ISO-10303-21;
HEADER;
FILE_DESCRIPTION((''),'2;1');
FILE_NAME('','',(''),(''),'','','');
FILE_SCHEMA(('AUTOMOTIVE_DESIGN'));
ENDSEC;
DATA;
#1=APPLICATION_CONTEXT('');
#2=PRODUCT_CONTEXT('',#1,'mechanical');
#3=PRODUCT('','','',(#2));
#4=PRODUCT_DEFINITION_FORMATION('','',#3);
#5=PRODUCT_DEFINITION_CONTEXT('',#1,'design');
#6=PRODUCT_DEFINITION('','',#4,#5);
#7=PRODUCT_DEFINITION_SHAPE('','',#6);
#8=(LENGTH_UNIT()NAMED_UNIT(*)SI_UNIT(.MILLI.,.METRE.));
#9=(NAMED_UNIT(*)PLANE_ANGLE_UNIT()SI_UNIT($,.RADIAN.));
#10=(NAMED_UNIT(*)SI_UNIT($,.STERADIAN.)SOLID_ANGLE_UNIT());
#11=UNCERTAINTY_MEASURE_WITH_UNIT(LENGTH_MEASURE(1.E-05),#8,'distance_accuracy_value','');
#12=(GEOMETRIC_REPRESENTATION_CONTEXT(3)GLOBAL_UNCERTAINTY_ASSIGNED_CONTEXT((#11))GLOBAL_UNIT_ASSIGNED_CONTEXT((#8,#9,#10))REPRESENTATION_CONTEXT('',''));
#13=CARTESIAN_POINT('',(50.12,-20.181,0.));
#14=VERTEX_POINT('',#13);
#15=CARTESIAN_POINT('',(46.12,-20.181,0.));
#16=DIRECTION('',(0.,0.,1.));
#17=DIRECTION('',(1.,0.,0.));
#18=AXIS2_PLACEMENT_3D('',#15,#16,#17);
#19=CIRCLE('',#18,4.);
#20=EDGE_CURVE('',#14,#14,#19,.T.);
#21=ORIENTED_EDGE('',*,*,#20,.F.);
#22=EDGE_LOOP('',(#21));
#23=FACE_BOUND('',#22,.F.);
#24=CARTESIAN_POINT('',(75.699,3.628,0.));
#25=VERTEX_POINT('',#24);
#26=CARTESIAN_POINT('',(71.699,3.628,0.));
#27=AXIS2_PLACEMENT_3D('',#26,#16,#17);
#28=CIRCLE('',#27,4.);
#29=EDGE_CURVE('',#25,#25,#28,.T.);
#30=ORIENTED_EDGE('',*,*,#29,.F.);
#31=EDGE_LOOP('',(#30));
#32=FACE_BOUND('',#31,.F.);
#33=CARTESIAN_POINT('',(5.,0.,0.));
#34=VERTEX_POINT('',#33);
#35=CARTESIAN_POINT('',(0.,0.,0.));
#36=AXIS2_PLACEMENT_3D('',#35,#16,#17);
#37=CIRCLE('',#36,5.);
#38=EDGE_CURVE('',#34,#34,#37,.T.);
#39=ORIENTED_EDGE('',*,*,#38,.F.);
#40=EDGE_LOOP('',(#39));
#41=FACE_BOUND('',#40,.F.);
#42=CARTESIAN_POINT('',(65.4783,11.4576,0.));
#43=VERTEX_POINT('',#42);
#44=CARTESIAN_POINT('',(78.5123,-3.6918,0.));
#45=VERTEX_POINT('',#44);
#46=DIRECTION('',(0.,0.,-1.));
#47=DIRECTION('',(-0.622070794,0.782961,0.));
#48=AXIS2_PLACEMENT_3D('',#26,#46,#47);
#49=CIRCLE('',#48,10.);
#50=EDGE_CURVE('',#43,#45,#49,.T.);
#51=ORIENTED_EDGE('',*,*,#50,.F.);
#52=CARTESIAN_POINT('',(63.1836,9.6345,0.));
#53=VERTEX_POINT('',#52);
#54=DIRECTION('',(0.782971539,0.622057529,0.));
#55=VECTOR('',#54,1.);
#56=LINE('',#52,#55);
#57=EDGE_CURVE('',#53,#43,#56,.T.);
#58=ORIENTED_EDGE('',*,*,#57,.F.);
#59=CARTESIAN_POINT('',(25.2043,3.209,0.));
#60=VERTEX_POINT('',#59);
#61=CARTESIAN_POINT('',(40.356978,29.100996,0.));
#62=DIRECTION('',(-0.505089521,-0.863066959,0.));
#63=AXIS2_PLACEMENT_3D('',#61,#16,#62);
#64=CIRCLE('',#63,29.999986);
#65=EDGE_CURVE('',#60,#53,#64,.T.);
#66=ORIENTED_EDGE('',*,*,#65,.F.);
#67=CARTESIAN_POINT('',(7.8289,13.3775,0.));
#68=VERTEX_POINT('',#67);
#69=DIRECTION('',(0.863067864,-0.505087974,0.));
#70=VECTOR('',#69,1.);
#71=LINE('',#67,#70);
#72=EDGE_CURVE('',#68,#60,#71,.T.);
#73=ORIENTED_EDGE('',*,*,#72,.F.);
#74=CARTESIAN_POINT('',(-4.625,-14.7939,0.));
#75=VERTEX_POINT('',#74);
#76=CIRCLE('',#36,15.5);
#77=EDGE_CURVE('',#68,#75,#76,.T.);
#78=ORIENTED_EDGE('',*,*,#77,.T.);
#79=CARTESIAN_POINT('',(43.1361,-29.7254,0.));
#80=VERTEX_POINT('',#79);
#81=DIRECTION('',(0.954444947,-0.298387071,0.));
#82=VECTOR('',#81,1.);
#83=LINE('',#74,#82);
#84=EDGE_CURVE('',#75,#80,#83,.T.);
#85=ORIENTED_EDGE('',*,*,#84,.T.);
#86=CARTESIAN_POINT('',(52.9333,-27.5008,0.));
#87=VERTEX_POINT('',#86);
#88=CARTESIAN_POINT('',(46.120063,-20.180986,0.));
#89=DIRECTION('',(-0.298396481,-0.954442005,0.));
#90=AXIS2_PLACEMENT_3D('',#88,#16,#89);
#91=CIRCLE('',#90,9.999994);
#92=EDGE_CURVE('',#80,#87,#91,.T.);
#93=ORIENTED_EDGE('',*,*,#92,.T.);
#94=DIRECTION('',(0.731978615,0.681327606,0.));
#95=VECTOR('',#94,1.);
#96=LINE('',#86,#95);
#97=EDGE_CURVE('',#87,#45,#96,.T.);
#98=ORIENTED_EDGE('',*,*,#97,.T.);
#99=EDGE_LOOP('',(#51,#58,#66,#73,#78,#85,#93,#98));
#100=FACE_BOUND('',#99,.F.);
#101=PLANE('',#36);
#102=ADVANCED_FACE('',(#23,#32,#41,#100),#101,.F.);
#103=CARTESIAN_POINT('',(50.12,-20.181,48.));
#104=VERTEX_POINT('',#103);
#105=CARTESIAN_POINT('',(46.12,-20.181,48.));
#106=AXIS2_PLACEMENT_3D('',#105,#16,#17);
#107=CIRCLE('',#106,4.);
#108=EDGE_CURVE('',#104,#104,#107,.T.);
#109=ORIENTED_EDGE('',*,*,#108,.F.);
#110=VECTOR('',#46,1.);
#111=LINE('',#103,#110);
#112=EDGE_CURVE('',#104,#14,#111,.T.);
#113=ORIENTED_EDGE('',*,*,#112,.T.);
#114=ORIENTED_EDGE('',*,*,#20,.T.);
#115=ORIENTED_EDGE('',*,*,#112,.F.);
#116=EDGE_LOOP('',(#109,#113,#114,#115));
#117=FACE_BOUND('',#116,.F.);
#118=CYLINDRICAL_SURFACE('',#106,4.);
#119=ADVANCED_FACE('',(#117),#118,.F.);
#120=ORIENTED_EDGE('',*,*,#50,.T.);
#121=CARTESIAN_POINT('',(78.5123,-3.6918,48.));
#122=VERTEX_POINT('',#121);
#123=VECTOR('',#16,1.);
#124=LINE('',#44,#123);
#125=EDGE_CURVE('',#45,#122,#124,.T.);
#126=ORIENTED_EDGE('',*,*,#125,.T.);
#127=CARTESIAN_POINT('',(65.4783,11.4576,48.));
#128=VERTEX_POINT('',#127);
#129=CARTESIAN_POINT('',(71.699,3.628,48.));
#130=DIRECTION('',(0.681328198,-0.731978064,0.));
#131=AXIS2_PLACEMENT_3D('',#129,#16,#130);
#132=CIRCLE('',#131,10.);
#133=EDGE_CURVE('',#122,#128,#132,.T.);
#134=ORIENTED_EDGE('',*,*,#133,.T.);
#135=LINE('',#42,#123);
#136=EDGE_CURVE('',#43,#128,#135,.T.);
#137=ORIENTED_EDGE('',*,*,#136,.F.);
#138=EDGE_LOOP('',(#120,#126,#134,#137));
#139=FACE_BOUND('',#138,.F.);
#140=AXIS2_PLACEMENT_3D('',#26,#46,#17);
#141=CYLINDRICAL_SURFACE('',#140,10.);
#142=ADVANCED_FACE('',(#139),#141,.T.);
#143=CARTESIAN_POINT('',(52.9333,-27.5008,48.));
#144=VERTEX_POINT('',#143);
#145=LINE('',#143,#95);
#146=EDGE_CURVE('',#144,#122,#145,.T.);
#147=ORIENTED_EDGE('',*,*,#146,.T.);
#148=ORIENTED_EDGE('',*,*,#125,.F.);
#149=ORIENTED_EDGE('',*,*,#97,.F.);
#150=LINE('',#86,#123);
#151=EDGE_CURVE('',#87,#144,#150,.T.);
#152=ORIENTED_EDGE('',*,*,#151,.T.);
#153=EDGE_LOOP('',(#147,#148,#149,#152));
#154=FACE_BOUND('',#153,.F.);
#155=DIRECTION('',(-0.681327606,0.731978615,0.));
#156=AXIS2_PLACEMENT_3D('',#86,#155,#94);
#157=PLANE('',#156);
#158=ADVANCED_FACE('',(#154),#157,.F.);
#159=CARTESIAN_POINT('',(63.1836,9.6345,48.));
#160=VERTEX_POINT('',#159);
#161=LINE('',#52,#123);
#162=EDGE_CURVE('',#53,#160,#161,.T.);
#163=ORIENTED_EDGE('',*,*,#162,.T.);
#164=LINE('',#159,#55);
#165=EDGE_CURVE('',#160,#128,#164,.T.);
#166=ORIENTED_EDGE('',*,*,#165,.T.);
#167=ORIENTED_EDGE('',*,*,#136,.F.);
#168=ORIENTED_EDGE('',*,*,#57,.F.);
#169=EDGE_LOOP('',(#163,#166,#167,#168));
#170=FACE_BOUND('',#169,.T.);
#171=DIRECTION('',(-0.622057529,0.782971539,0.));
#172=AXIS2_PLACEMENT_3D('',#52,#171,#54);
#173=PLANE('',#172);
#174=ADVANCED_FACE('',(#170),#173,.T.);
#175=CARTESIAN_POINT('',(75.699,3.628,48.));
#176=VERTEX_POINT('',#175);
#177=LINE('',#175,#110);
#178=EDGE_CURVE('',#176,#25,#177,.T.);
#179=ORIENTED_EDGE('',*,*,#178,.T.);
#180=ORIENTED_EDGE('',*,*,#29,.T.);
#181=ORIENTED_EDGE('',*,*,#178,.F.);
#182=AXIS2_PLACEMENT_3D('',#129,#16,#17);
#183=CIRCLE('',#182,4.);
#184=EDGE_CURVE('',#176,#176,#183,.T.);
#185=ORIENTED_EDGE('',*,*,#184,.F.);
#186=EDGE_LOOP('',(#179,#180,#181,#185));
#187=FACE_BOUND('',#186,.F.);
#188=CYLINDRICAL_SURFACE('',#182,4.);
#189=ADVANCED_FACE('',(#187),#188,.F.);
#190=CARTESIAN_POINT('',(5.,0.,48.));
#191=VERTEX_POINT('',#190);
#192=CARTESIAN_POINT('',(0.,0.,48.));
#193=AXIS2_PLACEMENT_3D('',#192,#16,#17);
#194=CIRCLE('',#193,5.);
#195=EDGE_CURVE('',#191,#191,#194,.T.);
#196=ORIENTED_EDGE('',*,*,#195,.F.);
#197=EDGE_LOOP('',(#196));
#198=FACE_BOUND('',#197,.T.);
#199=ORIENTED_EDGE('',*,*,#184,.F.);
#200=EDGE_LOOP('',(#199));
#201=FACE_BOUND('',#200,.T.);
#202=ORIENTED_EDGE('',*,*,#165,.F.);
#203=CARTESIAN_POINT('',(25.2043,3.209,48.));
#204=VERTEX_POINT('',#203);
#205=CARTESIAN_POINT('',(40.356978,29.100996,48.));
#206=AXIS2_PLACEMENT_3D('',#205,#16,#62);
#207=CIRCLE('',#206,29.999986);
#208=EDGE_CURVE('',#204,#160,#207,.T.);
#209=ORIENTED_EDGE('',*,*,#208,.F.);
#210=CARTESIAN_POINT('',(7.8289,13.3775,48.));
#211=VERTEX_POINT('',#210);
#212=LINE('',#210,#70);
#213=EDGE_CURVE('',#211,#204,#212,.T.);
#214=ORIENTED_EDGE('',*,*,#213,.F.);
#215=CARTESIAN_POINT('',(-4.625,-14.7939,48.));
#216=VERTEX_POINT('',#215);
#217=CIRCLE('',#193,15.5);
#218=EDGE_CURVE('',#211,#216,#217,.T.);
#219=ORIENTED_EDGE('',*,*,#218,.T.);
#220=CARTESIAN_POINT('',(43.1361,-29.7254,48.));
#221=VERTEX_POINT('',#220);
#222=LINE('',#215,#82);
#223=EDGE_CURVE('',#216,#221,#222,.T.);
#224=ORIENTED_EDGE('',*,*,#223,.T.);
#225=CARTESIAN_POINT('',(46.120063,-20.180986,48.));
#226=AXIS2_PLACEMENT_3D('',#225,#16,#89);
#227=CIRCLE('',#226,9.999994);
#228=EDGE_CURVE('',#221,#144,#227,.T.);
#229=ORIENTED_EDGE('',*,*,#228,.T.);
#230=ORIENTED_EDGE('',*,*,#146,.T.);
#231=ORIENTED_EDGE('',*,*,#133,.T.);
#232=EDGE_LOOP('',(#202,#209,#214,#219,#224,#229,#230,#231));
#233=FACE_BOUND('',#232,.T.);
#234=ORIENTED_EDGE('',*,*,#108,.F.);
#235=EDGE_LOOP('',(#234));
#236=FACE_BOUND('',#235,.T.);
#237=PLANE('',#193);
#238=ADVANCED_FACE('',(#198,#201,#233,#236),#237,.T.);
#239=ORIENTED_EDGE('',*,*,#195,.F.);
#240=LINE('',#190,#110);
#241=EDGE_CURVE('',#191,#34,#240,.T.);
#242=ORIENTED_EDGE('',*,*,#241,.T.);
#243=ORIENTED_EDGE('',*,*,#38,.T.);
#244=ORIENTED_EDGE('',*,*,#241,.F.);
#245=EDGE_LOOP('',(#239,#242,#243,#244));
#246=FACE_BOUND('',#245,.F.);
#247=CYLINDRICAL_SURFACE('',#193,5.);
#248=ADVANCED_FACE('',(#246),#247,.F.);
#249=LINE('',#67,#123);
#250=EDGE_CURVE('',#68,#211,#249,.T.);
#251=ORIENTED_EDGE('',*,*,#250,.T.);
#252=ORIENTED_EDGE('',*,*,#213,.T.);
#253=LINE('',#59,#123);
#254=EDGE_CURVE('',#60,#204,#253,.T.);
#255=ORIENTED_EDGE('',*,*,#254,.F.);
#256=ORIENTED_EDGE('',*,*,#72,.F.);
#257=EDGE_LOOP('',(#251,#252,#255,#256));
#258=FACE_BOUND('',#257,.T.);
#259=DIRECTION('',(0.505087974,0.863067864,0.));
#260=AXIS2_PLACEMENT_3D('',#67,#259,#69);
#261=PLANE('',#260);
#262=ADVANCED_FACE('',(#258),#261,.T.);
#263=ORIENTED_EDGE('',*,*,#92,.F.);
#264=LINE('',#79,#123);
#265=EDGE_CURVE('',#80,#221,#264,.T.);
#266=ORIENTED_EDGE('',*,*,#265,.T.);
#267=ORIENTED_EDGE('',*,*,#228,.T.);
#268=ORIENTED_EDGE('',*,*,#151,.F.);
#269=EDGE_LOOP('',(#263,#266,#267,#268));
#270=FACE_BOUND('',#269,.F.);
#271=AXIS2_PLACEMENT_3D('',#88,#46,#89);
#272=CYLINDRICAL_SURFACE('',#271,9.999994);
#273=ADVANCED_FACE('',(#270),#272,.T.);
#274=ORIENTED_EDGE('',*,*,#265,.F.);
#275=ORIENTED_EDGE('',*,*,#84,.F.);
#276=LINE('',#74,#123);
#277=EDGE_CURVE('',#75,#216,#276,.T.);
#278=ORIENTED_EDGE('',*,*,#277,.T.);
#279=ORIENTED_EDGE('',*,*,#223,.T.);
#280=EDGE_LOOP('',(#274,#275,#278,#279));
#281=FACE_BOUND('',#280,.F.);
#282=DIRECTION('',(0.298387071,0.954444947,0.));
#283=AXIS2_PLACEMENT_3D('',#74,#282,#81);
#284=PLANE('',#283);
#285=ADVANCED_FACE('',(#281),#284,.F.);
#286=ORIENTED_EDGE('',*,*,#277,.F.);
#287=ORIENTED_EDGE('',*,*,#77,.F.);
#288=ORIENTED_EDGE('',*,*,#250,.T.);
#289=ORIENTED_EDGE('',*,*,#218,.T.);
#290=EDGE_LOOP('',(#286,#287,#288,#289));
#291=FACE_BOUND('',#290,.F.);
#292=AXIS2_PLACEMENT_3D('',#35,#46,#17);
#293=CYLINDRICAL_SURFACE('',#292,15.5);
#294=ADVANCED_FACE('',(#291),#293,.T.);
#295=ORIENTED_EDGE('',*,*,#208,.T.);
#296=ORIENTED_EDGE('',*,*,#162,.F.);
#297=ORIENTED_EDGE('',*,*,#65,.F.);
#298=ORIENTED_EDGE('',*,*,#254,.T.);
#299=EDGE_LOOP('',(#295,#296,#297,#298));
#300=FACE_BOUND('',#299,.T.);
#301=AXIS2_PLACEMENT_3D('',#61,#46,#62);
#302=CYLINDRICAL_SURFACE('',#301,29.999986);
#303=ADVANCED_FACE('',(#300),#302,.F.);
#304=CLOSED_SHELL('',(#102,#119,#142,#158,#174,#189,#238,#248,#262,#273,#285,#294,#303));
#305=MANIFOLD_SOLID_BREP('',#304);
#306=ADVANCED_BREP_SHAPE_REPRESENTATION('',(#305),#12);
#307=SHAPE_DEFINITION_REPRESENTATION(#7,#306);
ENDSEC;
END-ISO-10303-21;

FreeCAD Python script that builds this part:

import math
import FreeCAD as App
import Part
import Sketcher

doc = App.newDocument("Part")
body = doc.addObject("PartDesign::Body", "Body")

# Sketch on XY plane
sketch1 = body.newObject("Sketcher::SketchObject", "Sketch")
sketch1.AttachmentSupport = (doc.getObject("XY_Plane"), [""])
sketch1.MapMode = "FlatFace"
sketch1.addGeometry([
    Part.ArcOfCircle(Part.Circle(App.Vector(0, 0, 0), App.Vector(0, 0, 1), 15.5), math.radians(60), math.radians(253)),  # 0
    Part.LineSegment(App.Vector(-4.6, -14.8, 0), App.Vector(43.1, -29.7, 0)),  # 1
    Part.ArcOfCircle(Part.Circle(App.Vector(46.1, -20.2, 0), App.Vector(0, 0, 1), 10), math.radians(-107), math.radians(-47)),  # 2
    Part.LineSegment(App.Vector(52.9, -27.5, 0), App.Vector(78.5, -3.7, 0)),  # 3
    Part.ArcOfCircle(Part.Circle(App.Vector(71.7, 3.6, 0), App.Vector(0, 0, 1), 10), math.radians(-47), math.radians(128)),  # 4
    Part.LineSegment(App.Vector(65.5, 11.5, 0), App.Vector(63.2, 9.6, 0)),  # 5
    Part.ArcOfCircle(Part.Circle(App.Vector(40.4, 29.1, 0), App.Vector(0, 0, 1), 30), math.radians(-120), math.radians(-40)),  # 6
    Part.LineSegment(App.Vector(25.2, 3.2, 0), App.Vector(7.8, 13.4, 0)),  # 7
], False)
sketch1.addConstraint([
    Sketcher.Constraint("Tangent", 0, 2, 1, 1),
    Sketcher.Constraint("Tangent", 1, 2, 2, 1),
    Sketcher.Constraint("Tangent", 2, 2, 3, 1),
    Sketcher.Constraint("Tangent", 3, 2, 4, 1),
    Sketcher.Constraint("Tangent", 4, 2, 5, 1),
    Sketcher.Constraint("Coincident", 5, 2, 6, 2),
    Sketcher.Constraint("Tangent", 6, 1, 7, 1),
    Sketcher.Constraint("Tangent", 7, 2, 0, 1),
    Sketcher.Constraint("Coincident", 0, 3, -1, 1),
    Sketcher.Constraint("Equal", 2, 4),
    Sketcher.Constraint("Radius", 2, 10.0),
    Sketcher.Constraint("Radius", 6, 30.0),
    Sketcher.Constraint("Radius", 0, 15.5),
    Sketcher.Constraint("DistanceX", -1, 1, 2, 3, 46.12),
    Sketcher.Constraint("DistanceY", 2, 3, -1, 1, 20.181),
    Sketcher.Constraint("DistanceX", -1, 1, 4, 3, 71.699),
    Sketcher.Constraint("DistanceY", -1, 1, 4, 3, 3.628),
    Sketcher.Constraint("DistanceX", -1, 1, 6, 3, 40.357),
    Sketcher.Constraint("DistanceY", -1, 1, 6, 3, 29.101),
    Sketcher.Constraint("DistanceX", 4, 2, 3, 2, 13.034),
])
pad1 = body.newObject("PartDesign::Pad", "Pad")
pad1.Profile = sketch1
pad1.Length = 48

# Sketch on XY plane
sketch2 = body.newObject("Sketcher::SketchObject", "Sketch001")
sketch2.AttachmentSupport = (doc.getObject("XY_Plane"), [""])
sketch2.MapMode = "FlatFace"
sketch2.AttachmentOffset = App.Placement(App.Vector(0, 0, 48), App.Rotation())
sketch2.addGeometry([
    Part.Circle(App.Vector(0, 0, 0), App.Vector(0, 0, 1), 5),
    Part.Circle(App.Vector(46.1, -20.2, 0), App.Vector(0, 0, 1), 4),
    Part.Circle(App.Vector(71.7, 3.6, 0), App.Vector(0, 0, 1), 4),
], False)
sketch2.addConstraint([
    Sketcher.Constraint("Coincident", 0, 3, -1, 1),
    Sketcher.Constraint("Equal", 1, 2),
    Sketcher.Constraint("Diameter", 1, 8.0),
    Sketcher.Constraint("Diameter", 0, 10.0),
    Sketcher.Constraint("DistanceX", -1, 1, 1, 3, 46.12),
    Sketcher.Constraint("DistanceY", 1, 3, -1, 1, 20.181),
    Sketcher.Constraint("DistanceX", -1, 1, 2, 3, 71.699),
    Sketcher.Constraint("DistanceY", -1, 1, 2, 3, 3.628),
])
pocket1 = body.newObject("PartDesign::Pocket", "Pocket")
pocket1.Profile = sketch2
pocket1.Length = 48

doc.recompute()
